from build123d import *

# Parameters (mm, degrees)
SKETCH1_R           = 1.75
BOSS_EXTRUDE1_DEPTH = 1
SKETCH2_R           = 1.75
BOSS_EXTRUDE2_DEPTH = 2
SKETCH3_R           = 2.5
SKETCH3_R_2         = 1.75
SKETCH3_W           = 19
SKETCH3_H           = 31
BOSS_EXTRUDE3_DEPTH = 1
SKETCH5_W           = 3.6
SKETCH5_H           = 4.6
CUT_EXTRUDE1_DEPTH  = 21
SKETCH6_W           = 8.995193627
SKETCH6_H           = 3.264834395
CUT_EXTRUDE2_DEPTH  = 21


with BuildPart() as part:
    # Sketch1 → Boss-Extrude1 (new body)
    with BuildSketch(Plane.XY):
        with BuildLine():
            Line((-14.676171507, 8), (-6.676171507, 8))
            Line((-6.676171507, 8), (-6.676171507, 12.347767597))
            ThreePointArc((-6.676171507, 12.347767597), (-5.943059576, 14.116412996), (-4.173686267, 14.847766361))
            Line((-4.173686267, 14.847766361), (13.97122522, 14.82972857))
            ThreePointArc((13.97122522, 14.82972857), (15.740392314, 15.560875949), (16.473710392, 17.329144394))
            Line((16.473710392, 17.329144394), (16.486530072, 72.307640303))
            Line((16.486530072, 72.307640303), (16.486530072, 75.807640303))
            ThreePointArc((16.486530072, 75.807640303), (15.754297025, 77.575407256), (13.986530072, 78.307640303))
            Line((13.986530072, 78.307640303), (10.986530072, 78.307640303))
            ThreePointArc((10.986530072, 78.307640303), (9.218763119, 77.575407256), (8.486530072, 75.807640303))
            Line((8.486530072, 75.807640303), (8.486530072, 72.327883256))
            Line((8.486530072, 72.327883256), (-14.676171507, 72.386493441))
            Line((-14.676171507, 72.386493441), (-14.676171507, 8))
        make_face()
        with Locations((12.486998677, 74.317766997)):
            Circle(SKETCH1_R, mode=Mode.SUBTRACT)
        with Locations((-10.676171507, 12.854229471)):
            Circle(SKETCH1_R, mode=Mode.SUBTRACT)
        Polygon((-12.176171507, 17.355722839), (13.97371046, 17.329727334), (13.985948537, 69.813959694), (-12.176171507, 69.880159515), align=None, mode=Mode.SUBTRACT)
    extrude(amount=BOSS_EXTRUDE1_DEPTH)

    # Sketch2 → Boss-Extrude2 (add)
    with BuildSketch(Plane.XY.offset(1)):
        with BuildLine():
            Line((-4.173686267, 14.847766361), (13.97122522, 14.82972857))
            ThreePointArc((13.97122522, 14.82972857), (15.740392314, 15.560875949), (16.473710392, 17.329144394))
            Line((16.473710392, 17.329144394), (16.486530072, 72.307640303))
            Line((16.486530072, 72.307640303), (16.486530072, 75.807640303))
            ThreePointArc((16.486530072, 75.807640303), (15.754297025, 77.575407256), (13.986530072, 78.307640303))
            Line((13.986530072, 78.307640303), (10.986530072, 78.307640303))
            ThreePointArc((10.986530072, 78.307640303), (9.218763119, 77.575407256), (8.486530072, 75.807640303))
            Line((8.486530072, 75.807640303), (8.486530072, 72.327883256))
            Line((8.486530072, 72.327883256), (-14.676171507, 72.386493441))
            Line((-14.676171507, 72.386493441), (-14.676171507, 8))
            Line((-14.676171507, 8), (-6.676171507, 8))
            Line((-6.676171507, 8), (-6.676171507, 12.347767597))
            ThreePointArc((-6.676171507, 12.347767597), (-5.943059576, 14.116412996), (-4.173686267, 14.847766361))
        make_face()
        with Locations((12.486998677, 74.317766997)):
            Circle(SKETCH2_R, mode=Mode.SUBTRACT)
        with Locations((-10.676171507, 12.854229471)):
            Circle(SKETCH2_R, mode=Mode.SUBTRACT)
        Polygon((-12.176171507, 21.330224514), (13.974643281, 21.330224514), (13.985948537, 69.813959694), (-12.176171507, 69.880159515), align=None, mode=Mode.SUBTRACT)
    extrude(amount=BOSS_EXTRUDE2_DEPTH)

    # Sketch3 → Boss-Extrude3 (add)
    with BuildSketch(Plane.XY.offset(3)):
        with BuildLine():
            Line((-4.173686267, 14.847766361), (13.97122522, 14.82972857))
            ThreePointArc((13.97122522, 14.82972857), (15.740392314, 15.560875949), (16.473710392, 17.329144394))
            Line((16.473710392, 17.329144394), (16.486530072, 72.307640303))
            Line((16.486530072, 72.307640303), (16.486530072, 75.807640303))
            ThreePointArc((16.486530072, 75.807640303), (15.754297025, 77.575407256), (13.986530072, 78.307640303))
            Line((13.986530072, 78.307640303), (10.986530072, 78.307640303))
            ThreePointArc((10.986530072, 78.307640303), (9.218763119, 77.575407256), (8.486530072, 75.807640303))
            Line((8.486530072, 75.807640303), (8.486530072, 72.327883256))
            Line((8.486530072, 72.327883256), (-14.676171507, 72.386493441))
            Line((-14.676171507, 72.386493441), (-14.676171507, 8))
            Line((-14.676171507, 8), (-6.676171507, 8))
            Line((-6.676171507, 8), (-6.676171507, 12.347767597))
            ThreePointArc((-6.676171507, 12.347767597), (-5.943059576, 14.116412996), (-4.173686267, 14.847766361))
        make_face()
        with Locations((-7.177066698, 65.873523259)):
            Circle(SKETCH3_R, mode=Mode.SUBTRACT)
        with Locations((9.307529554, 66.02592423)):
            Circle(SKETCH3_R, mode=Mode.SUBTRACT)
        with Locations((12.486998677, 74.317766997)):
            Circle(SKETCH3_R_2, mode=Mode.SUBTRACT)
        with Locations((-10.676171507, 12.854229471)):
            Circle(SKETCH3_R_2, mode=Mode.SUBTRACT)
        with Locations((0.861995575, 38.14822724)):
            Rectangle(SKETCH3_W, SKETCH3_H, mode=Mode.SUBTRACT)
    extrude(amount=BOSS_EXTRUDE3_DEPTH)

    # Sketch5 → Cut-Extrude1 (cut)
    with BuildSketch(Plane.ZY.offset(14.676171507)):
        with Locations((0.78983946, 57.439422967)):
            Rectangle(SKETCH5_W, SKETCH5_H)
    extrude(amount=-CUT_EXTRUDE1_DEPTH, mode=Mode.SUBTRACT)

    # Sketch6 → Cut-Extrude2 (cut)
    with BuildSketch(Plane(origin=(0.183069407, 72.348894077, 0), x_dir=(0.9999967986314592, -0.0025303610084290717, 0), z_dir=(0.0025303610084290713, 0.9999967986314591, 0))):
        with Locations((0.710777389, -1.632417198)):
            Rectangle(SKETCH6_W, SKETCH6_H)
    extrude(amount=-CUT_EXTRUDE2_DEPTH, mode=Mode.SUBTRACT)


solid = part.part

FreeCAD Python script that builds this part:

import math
import FreeCAD as App
import Part
import Sketcher

V = App.Vector


def add_polygon(sketch, points):
    """Adds a closed chain of lines whose ends are joined by coincident constraints."""
    first, n = sketch.GeometryCount, len(points)
    for a, b in zip(points, points[1:] + points[:1]):
        sketch.addGeometry(Part.LineSegment(App.Vector(*a, 0), App.Vector(*b, 0)), False)
    for i in range(n):
        sketch.addConstraint(Sketcher.Constraint("Coincident", first + i, 2, first + (i + 1) % n, 1))

doc = App.newDocument("Part")
body = doc.addObject("PartDesign::Body", "Body")

# Sketch on XY plane
sketch1 = body.newObject("Sketcher::SketchObject", "Sketch")
sketch1.AttachmentSupport = (doc.getObject("XY_Plane"), [""])
sketch1.MapMode = "FlatFace"
sketch1.addGeometry(Part.LineSegment(V(-14.7, 8, 0), V(-6.7, 8, 0)), False)  # 0
sketch1.addGeometry(Part.LineSegment(V(-6.7, 8, 0), V(-6.7, 12.3, 0)), False)  # 1
sketch1.addGeometry(Part.ArcOfCircle(Part.Circle(V(-4.2, 12.3, 0), V(0, 0, 1), 2.5), math.radians(90), math.radians(180)), False)  # 2
sketch1.addGeometry(Part.LineSegment(V(-4.2, 14.8, 0), V(14, 14.8, 0)), False)  # 3
sketch1.addGeometry(Part.ArcOfCircle(Part.Circle(V(14, 17.3, 0), V(0, 0, 1), 2.5), math.radians(-90), math.radians(0)), False)  # 4
sketch1.addGeometry(Part.LineSegment(V(16.5, 17.3, 0), V(16.5, 72.3, 0)), False)  # 5
sketch1.addGeometry(Part.LineSegment(V(16.5, 72.3, 0), V(16.5, 75.8, 0)), False)  # 6
sketch1.addGeometry(Part.ArcOfCircle(Part.Circle(V(14, 75.8, 0), V(0, 0, 1), 2.5), math.radians(0), math.radians(90)), False)  # 7
sketch1.addGeometry(Part.LineSegment(V(14, 78.3, 0), V(11, 78.3, 0)), False)  # 8
sketch1.addGeometry(Part.ArcOfCircle(Part.Circle(V(11, 75.8, 0), V(0, 0, 1), 2.5), math.radians(90), math.radians(180)), False)  # 9
sketch1.addGeometry(Part.LineSegment(V(8.5, 75.8, 0), V(8.5, 72.3, 0)), False)  # 10
sketch1.addGeometry(Part.LineSegment(V(8.5, 72.3, 0), V(-14.7, 72.4, 0)), False)  # 11
sketch1.addGeometry(Part.LineSegment(V(-14.7, 72.4, 0), V(-14.7, 8, 0)), False)  # 12
sketch1.addGeometry(Part.Circle(V(-10.7, 12.9, 0), V(0, 0, 1), 1.8), False)  # 13
add_polygon(sketch1, [(14, 17.3), (-12.2, 17.4), (-12.2, 69.9), (14, 69.8)])  # lines 14-17
sketch1.addGeometry(Part.Circle(V(12.5, 74.3, 0), V(0, 0, 1), 1.8), False)  # 18
sketch1.addConstraint(Sketcher.Constraint("Coincident", 0, 2, 1, 1))
sketch1.addConstraint(Sketcher.Constraint("Tangent", 1, 2, 2, 2))
sketch1.addConstraint(Sketcher.Constraint("Tangent", 2, 1, 3, 1))
sketch1.addConstraint(Sketcher.Constraint("Tangent", 3, 2, 4, 1))
sketch1.addConstraint(Sketcher.Constraint("Tangent", 4, 2, 5, 1))
sketch1.addConstraint(Sketcher.Constraint("Coincident", 5, 2, 6, 1))
sketch1.addConstraint(Sketcher.Constraint("Tangent", 6, 2, 7, 1))
sketch1.addConstraint(Sketcher.Constraint("Tangent", 7, 2, 8, 1))
sketch1.addConstraint(Sketcher.Constraint("Tangent", 8, 2, 9, 1))
sketch1.addConstraint(Sketcher.Constraint("Tangent", 9, 2, 10, 1))
sketch1.addConstraint(Sketcher.Constraint("Coincident", 10, 2, 11, 1))
sketch1.addConstraint(Sketcher.Constraint("Coincident", 11, 2, 12, 1))
sketch1.addConstraint(Sketcher.Constraint("Coincident", 12, 2, 0, 1))
sketch1.addConstraint(Sketcher.Constraint("Horizontal", 0))
sketch1.addConstraint(Sketcher.Constraint("Vertical", 1))
sketch1.addConstraint(Sketcher.Constraint("Vertical", 6))
sketch1.addConstraint(Sketcher.Constraint("Horizontal", 8))
sketch1.addConstraint(Sketcher.Constraint("Vertical", 10))
sketch1.addConstraint(Sketcher.Constraint("Vertical", 12))
sketch1.addConstraint(Sketcher.Constraint("Vertical", 15))
sketch1.addConstraint(Sketcher.Constraint("Coincident", 17, 2, 4, 3))
sketch1.addConstraint(Sketcher.Constraint("Equal", 2, 4))
sketch1.addConstraint(Sketcher.Constraint("Equal", 4, 7))
sketch1.addConstraint(Sketcher.Constraint("Equal", 7, 9))
sketch1.addConstraint(Sketcher.Constraint("Equal", 13, 18))
sketch1.addConstraint(Sketcher.Constraint("Parallel", 3, 14))
sketch1.addConstraint(Sketcher.Constraint("Parallel", 11, 16))
sketch1.addConstraint(Sketcher.Constraint("Parallel", 5, 17))
sketch1.addConstraint(Sketcher.Constraint("Diameter", 13, 3.5))
sketch1.addConstraint(Sketcher.Constraint("Radius", 2, 2.5))
sketch1.addConstraint(Sketcher.Constraint("DistanceX", 0, 1, 0, 2, 8.0))
sketch1.addConstraint(Sketcher.Constraint("DistanceX", 8, 2, 8, 1, 3.0))
sketch1.addConstraint(Sketcher.Constraint("DistanceY", 6, 1, 6, 2, 3.5))
sketch1.addConstraint(Sketcher.Constraint("DistanceY", -1, 1, 0, 2, 8.0))
sketch1.addConstraint(Sketcher.Constraint("DistanceX", 13, 3, 0, 2, 4.0))
sketch1.addConstraint(Sketcher.Constraint("DistanceX", 14, 2, 2, 3, 8.0))
sketch1.addConstraint(Sketcher.Constraint("DistanceY", 2, 3, 18, 3, 61.969999))
sketch1.addConstraint(Sketcher.Constraint("DistanceX", -1, 1, 18, 3, 12.486999))
sketch1.addConstraint(Sketcher.Constraint("DistanceX", 2, 3, 7, 3, 18.162702))
sketch1.addConstraint(Sketcher.Constraint("Distance", 3, 18.14492))
sketch1.addConstraint(Sketcher.Constraint("DistanceY", 1, 1, 1, 2, 4.347768))
sketch1.addConstraint(Sketcher.Constraint("DistanceY", 10, 2, 10, 1, 3.479757))
sketch1.addConstraint(Sketcher.Constraint("DistanceY", 12, 2, 12, 1, 64.386493))
sketch1.addConstraint(Sketcher.Constraint("DistanceY", 15, 1, 15, 2, 52.524437))
sketch1.addConstraint(Sketcher.Constraint("DistanceX", 2, 3, -1, 1, 4.176172))
sketch1.addConstraint(Sketcher.Constraint("DistanceX", -1, 1, 4, 3, 13.97371))
sketch1.addConstraint(Sketcher.Constraint("DistanceY", -1, 1, 7, 3, 75.80764))
sketch1.addConstraint(Sketcher.Constraint("DistanceY", -1, 1, 13, 3, 12.854229))
pad1 = body.newObject("PartDesign::Pad", "Pad")
pad1.Profile = sketch1
pad1.Length = 1

# Sketch on XY plane
sketch2 = body.newObject("Sketcher::SketchObject", "Sketch001")
sketch2.AttachmentSupport = (doc.getObject("XY_Plane"), [""])
sketch2.MapMode = "FlatFace"
sketch2.AttachmentOffset = App.Placement(V(0, 0, 1), App.Rotation())
sketch2.addGeometry(Part.LineSegment(V(-4.2, 14.8, 0), V(14, 14.8, 0)), False)  # 0
sketch2.addGeometry(Part.ArcOfCircle(Part.Circle(V(14, 17.3, 0), V(0, 0, 1), 2.5), math.radians(-90), math.radians(0)), False)  # 1
sketch2.addGeometry(Part.LineSegment(V(16.5, 17.3, 0), V(16.5, 72.3, 0)), False)  # 2
sketch2.addGeometry(Part.LineSegment(V(16.5, 72.3, 0), V(16.5, 75.8, 0)), False)  # 3
sketch2.addGeometry(Part.ArcOfCircle(Part.Circle(V(14, 75.8, 0), V(0, 0, 1), 2.5), math.radians(0), math.radians(90)), False)  # 4
sketch2.addGeometry(Part.LineSegment(V(14, 78.3, 0), V(11, 78.3, 0)), False)  # 5
sketch2.addGeometry(Part.ArcOfCircle(Part.Circle(V(11, 75.8, 0), V(0, 0, 1), 2.5), math.radians(90), math.radians(180)), False)  # 6
sketch2.addGeometry(Part.LineSegment(V(8.5, 75.8, 0), V(8.5, 72.3, 0)), False)  # 7
sketch2.addGeometry(Part.LineSegment(V(8.5, 72.3, 0), V(-14.7, 72.4, 0)), False)  # 8
sketch2.addGeometry(Part.LineSegment(V(-14.7, 72.4, 0), V(-14.7, 8, 0)), False)  # 9
sketch2.addGeometry(Part.LineSegment(V(-14.7, 8, 0), V(-6.7, 8, 0)), False)  # 10
sketch2.addGeometry(Part.LineSegment(V(-6.7, 8, 0), V(-6.7, 12.3, 0)), False)  # 11
sketch2.addGeometry(Part.ArcOfCircle(Part.Circle(V(-4.2, 12.3, 0), V(0, 0, 1), 2.5), math.radians(90), math.radians(180)), False)  # 12
sketch2.addGeometry(Part.Circle(V(-10.7, 12.9, 0), V(0, 0, 1), 1.8), False)  # 13
add_polygon(sketch2, [(14, 21.3), (-12.2, 21.3), (-12.2, 69.9), (14, 69.8)])  # lines 14-17
sketch2.addGeometry(Part.Circle(V(12.5, 74.3, 0), V(0, 0, 1), 1.8), False)  # 18
sketch2.addConstraint(Sketcher.Constraint("Tangent", 0, 2, 1, 1))
sketch2.addConstraint(Sketcher.Constraint("Tangent", 1, 2, 2, 1))
sketch2.addConstraint(Sketcher.Constraint("Coincident", 2, 2, 3, 1))
sketch2.addConstraint(Sketcher.Constraint("Tangent", 3, 2, 4, 1))
sketch2.addConstraint(Sketcher.Constraint("Tangent", 4, 2, 5, 1))
sketch2.addConstraint(Sketcher.Constraint("Tangent", 5, 2, 6, 1))
sketch2.addConstraint(Sketcher.Constraint("Tangent", 6, 2, 7, 1))
sketch2.addConstraint(Sketcher.Constraint("Coincident", 7, 2, 8, 1))
sketch2.addConstraint(Sketcher.Constraint("Coincident", 8, 2, 9, 1))
sketch2.addConstraint(Sketcher.Constraint("Coincident", 9, 2, 10, 1))
sketch2.addConstraint(Sketcher.Constraint("Coincident", 10, 2, 11, 1))
sketch2.addConstraint(Sketcher.Constraint("Tangent", 11, 2, 12, 2))
sketch2.addConstraint(Sketcher.Constraint("Tangent", 12, 1, 0, 1))
sketch2.addConstraint(Sketcher.Constraint("Vertical", 3))
sketch2.addConstraint(Sketcher.Constraint("Horizontal", 5))
sketch2.addConstraint(Sketcher.Constraint("Vertical", 7))
sketch2.addConstraint(Sketcher.Constraint("Vertical", 9))
sketch2.addConstraint(Sketcher.Constraint("Horizontal", 10))
sketch2.addConstraint(Sketcher.Constraint("Vertical", 11))
sketch2.addConstraint(Sketcher.Constraint("Horizontal", 14))
sketch2.addConstraint(Sketcher.Constraint("Vertical", 15))
sketch2.addConstraint(Sketcher.Constraint("Equal", 1, 4))
sketch2.addConstraint(Sketcher.Constraint("Equal", 4, 6))
sketch2.addConstraint(Sketcher.Constraint("Equal", 6, 12))
sketch2.addConstraint(Sketcher.Constraint("Equal", 13, 18))
sketch2.addConstraint(Sketcher.Constraint("Parallel", 8, 16))
sketch2.addConstraint(Sketcher.Constraint("Parallel", 2, 17))
sketch2.addConstraint(Sketcher.Constraint("Diameter", 13, 3.5))
sketch2.addConstraint(Sketcher.Constraint("Radius", 1, 2.5))
sketch2.addConstraint(Sketcher.Constraint("DistanceX", 5, 2, 5, 1, 3.0))
sketch2.addConstraint(Sketcher.Constraint("DistanceX", 10, 1, 10, 2, 8.0))
sketch2.addConstraint(Sketcher.Constraint("DistanceY", 3, 1, 3, 2, 3.5))
sketch2.addConstraint(Sketcher.Constraint("DistanceY", -1, 1, 9, 2, 8.0))
sketch2.addConstraint(Sketcher.Constraint("DistanceX", 9, 2, 13, 3, 4.0))
sketch2.addConstraint(Sketcher.Constraint("DistanceX", 14, 2, 12, 3, 8.0))
sketch2.addConstraint(Sketcher.Constraint("DistanceY", 12, 3, 18, 3, 61.969999))
sketch2.addConstraint(Sketcher.Constraint("DistanceX", -1, 1, 18, 3, 12.486999))
sketch2.addConstraint(Sketcher.Constraint("DistanceX", 12, 3, 6, 3, 15.162702))
sketch2.addConstraint(Sketcher.Constraint("DistanceY", 13, 3, 0, 2, 1.975499))
sketch2.addConstraint(Sketcher.Constraint("Distance", 0, 18.14492))
sketch2.addConstraint(Sketcher.Constraint("DistanceX", 14, 2, 14, 1, 26.150815))
sketch2.addConstraint(Sketcher.Constraint("DistanceY", 7, 2, 7, 1, 3.479757))
sketch2.addConstraint(Sketcher.Constraint("DistanceY", 9, 2, 9, 1, 64.386493))
sketch2.addConstraint(Sketcher.Constraint("DistanceY", 11, 1, 11, 2, 4.347768))
sketch2.addConstraint(Sketcher.Constraint("DistanceY", 15, 1, 15, 2, 48.549935))
sketch2.addConstraint(Sketcher.Constraint("DistanceX", -1, 1, 1, 3, 13.97371))
sketch2.addConstraint(Sketcher.Constraint("DistanceX", -1, 1, 4, 3, 13.98653))
sketch2.addConstraint(Sketcher.Constraint("DistanceY", -1, 1, 4, 3, 75.80764))
sketch2.addConstraint(Sketcher.Constraint("DistanceY", -1, 1, 15, 2, 69.88016))
pad2 = body.newObject("PartDesign::Pad", "Pad001")
pad2.Profile = sketch2
pad2.Length = 2

# Sketch on XY plane
sketch3 = body.newObject("Sketcher::SketchObject", "Sketch002")
sketch3.AttachmentSupport = (doc.getObject("XY_Plane"), [""])
sketch3.MapMode = "FlatFace"
sketch3.AttachmentOffset = App.Placement(V(0, 0, 3), App.Rotation())
sketch3.addGeometry(Part.LineSegment(V(-4.2, 14.8, 0), V(14, 14.8, 0)), False)  # 0
sketch3.addGeometry(Part.ArcOfCircle(Part.Circle(V(14, 17.3, 0), V(0, 0, 1), 2.5), math.radians(-90), math.radians(0)), False)  # 1
sketch3.addGeometry(Part.LineSegment(V(16.5, 17.3, 0), V(16.5, 72.3, 0)), False)  # 2
sketch3.addGeometry(Part.LineSegment(V(16.5, 72.3, 0), V(16.5, 75.8, 0)), False)  # 3
sketch3.addGeometry(Part.ArcOfCircle(Part.Circle(V(14, 75.8, 0), V(0, 0, 1), 2.5), math.radians(0), math.radians(90)), False)  # 4
sketch3.addGeometry(Part.LineSegment(V(14, 78.3, 0), V(11, 78.3, 0)), False)  # 5
sketch3.addGeometry(Part.ArcOfCircle(Part.Circle(V(11, 75.8, 0), V(0, 0, 1), 2.5), math.radians(90), math.radians(180)), False)  # 6
sketch3.addGeometry(Part.LineSegment(V(8.5, 75.8, 0), V(8.5, 72.3, 0)), False)  # 7
sketch3.addGeometry(Part.LineSegment(V(8.5, 72.3, 0), V(-14.7, 72.4, 0)), False)  # 8
sketch3.addGeometry(Part.LineSegment(V(-14.7, 72.4, 0), V(-14.7, 8, 0)), False)  # 9
sketch3.addGeometry(Part.LineSegment(V(-14.7, 8, 0), V(-6.7, 8, 0)), False)  # 10
sketch3.addGeometry(Part.LineSegment(V(-6.7, 8, 0), V(-6.7, 12.3, 0)), False)  # 11
sketch3.addGeometry(Part.ArcOfCircle(Part.Circle(V(-4.2, 12.3, 0), V(0, 0, 1), 2.5), math.radians(90), math.radians(180)), False)  # 12
sketch3.addGeometry(Part.Circle(V(-10.7, 12.9, 0), V(0, 0, 1), 1.8), False)  # 13
add_polygon(sketch3, [(10.4, 22.6), (-8.6, 22.6), (-8.6, 53.6), (10.4, 53.6)])  # lines 14-17
sketch3.addGeometry(Part.Circle(V(-7.2, 65.9, 0), V(0, 0, 1), 2.5), False)  # 18
sketch3.addGeometry(Part.Circle(V(9.3, 66, 0), V(0, 0, 1), 2.5), False)  # 19
sketch3.addGeometry(Part.Circle(V(12.5, 74.3, 0), V(0, 0, 1), 1.8), False)  # 20
sketch3.addConstraint(Sketcher.Constraint("Tangent", 0, 2, 1, 1))
sketch3.addConstraint(Sketcher.Constraint("Tangent", 1, 2, 2, 1))
sketch3.addConstraint(Sketcher.Constraint("Coincident", 2, 2, 3, 1))
sketch3.addConstraint(Sketcher.Constraint("Tangent", 3, 2, 4, 1))
sketch3.addConstraint(Sketcher.Constraint("Tangent", 4, 2, 5, 1))
sketch3.addConstraint(Sketcher.Constraint("Tangent", 5, 2, 6, 1))
sketch3.addConstraint(Sketcher.Constraint("Tangent", 6, 2, 7, 1))
sketch3.addConstraint(Sketcher.Constraint("Coincident", 7, 2, 8, 1))
sketch3.addConstraint(Sketcher.Constraint("Coincident", 8, 2, 9, 1))
sketch3.addConstraint(Sketcher.Constraint("Coincident", 9, 2, 10, 1))
sketch3.addConstraint(Sketcher.Constraint("Coincident", 10, 2, 11, 1))
sketch3.addConstraint(Sketcher.Constraint("Tangent", 11, 2, 12, 2))
sketch3.addConstraint(Sketcher.Constraint("Tangent", 12, 1, 0, 1))
sketch3.addConstraint(Sketcher.Constraint("Vertical", 3))
sketch3.addConstraint(Sketcher.Constraint("Horizontal", 5))
sketch3.addConstraint(Sketcher.Constraint("Vertical", 7))
sketch3.addConstraint(Sketcher.Constraint("Vertical", 9))
sketch3.addConstraint(Sketcher.Constraint("Horizontal", 10))
sketch3.addConstraint(Sketcher.Constraint("Vertical", 11))
sketch3.addConstraint(Sketcher.Constraint("Horizontal", 14))
sketch3.addConstraint(Sketcher.Constraint("Vertical", 15))
sketch3.addConstraint(Sketcher.Constraint("Horizontal", 16))
sketch3.addConstraint(Sketcher.Constraint("Vertical", 17))
sketch3.addConstraint(Sketcher.Constraint("Equal", 1, 4))
sketch3.addConstraint(Sketcher.Constraint("Equal", 4, 6))
sketch3.addConstraint(Sketcher.Constraint("Equal", 6, 12))
sketch3.addConstraint(Sketcher.Constraint("Equal", 12, 18))
sketch3.addConstraint(Sketcher.Constraint("Equal", 18, 19))
sketch3.addConstraint(Sketcher.Constraint("Equal", 13, 20))
sketch3.addConstraint(Sketcher.Constraint("Diameter", 18, 5.0))
sketch3.addConstraint(Sketcher.Constraint("Diameter", 13, 3.5))
sketch3.addConstraint(Sketcher.Constraint("DistanceX", 5, 2, 5, 1, 3.0))
sketch3.addConstraint(Sketcher.Constraint("DistanceX", 10, 1, 10, 2, 8.0))
sketch3.addConstraint(Sketcher.Constraint("DistanceX", 14, 2, 14, 1, 19.0))
sketch3.addConstraint(Sketcher.Constraint("DistanceY", 15, 1, 15, 2, 31.0))
sketch3.addConstraint(Sketcher.Constraint("DistanceY", 3, 1, 3, 2, 3.5))
sketch3.addConstraint(Sketcher.Constraint("DistanceY", -1, 1, 9, 2, 8.0))
sketch3.addConstraint(Sketcher.Constraint("DistanceX", 9, 2, 13, 3, 4.0))
sketch3.addConstraint(Sketcher.Constraint("DistanceX", -1, 1, 20, 3, 12.486999))
sketch3.addConstraint(Sketcher.Constraint("DistanceX", 19, 3, 6, 3, 1.679001))
sketch3.addConstraint(Sketcher.Constraint("DistanceX", 12, 3, 6, 3, 15.162702))
sketch3.addConstraint(Sketcher.Constraint("DistanceY", 18, 3, 19, 3, 0.152401))
sketch3.addConstraint(Sketcher.Constraint("DistanceY", 13, 3, 0, 2, 1.975499))
sketch3.addConstraint(Sketcher.Constraint("DistanceY", 1, 3, 17, 2, 5.3185))
sketch3.addConstraint(Sketcher.Constraint("Distance", 0, 18.14492))
sketch3.addConstraint(Sketcher.Constraint("DistanceY", 7, 2, 7, 1, 3.479757))
sketch3.addConstraint(Sketcher.Constraint("DistanceY", 9, 2, 9, 1, 64.386493))
sketch3.addConstraint(Sketcher.Constraint("DistanceY", 11, 1, 11, 2, 4.347768))
sketch3.addConstraint(Sketcher.Constraint("DistanceX", -1, 1, 1, 3, 13.97371))
sketch3.addConstraint(Sketcher.Constraint("DistanceX", -1, 1, 4, 3, 13.98653))
sketch3.addConstraint(Sketcher.Constraint("DistanceY", -1, 1, 4, 3, 75.80764))
sketch3.addConstraint(Sketcher.Constraint("DistanceY", 1, 3, 20, 3, 56.98804))
sketch3.addConstraint(Sketcher.Constraint("DistanceX", 18, 3, 0, 2, 21.148292))
sketch3.addConstraint(Sketcher.Constraint("DistanceY", 1, 2, 19, 3, 48.69678))
sketch3.addConstraint(Sketcher.Constraint("DistanceX", 14, 2, 12, 1, 4.464318))
pad3 = body.newObject("PartDesign::Pad", "Pad002")
pad3.Profile = sketch3
pad3.Length = 1

# Sketch on YZ plane
sketch4 = body.newObject("Sketcher::SketchObject", "Sketch003")
sketch4.AttachmentSupport = (doc.getObject("YZ_Plane"), [""])
sketch4.MapMode = "FlatFace"
sketch4.AttachmentOffset = App.Placement(V(0, 0, -14.676172), App.Rotation())
add_polygon(sketch4, [(59.7, -1), (55.1, -1), (55.1, 2.6), (59.7, 2.6)])  # lines 0-3
sketch4.addConstraint(Sketcher.Constraint("Horizontal", 0))
sketch4.addConstraint(Sketcher.Constraint("Vertical", 1))
sketch4.addConstraint(Sketcher.Constraint("Horizontal", 2))
sketch4.addConstraint(Sketcher.Constraint("Vertical", 3))
sketch4.addConstraint(Sketcher.Constraint("DistanceX", 0, 2, 0, 1, 4.6))
sketch4.addConstraint(Sketcher.Constraint("DistanceY", 1, 1, 1, 2, 3.6))
sketch4.addConstraint(Sketcher.Constraint("DistanceY", 0, 2, -1, 1, 1.010161))
sketch4.addConstraint(Sketcher.Constraint("DistanceX", -1, 1, 0, 2, 55.139423))
pocket1 = body.newObject("PartDesign::Pocket", "Pocket")
pocket1.Profile = sketch4
pocket1.Length = 21
pocket1.Reversed = True

# Sketch on an angled plane
sketch5 = body.newObject("Sketcher::SketchObject", "Sketch004")
sketch5.Placement = App.Placement(V(0.183069, 72.348894, 0), App.Rotation(V(0.999996799, -0.002530361, 0), V(0, 0, -1.000000001), V(0.002530361, 0.999996799, 0), "ZXY"))
add_polygon(sketch5, [(-3.8, 0), (-3.8, -3.3), (5.2, -3.3), (5.2, 0)])  # lines 0-3
sketch5.addConstraint(Sketcher.Constraint("Vertical", 0))
sketch5.addConstraint(Sketcher.Constraint("Horizontal", 1))
sketch5.addConstraint(Sketcher.Constraint("Vertical", 2))
sketch5.addConstraint(Sketcher.Constraint("Horizontal", 3))
sketch5.addConstraint(Sketcher.Constraint("PointOnObject", 2, 2, -1))
sketch5.addConstraint(Sketcher.Constraint("DistanceX", 1, 1, 1, 2, 8.995194))
sketch5.addConstraint(Sketcher.Constraint("DistanceY", 0, 2, 0, 1, 3.264834))
sketch5.addConstraint(Sketcher.Constraint("DistanceX", 0, 2, -1, 1, 3.786819))
pocket2 = body.newObject("PartDesign::Pocket", "Pocket001")
pocket2.Profile = sketch5
pocket2.Length = 21

doc.recompute()
